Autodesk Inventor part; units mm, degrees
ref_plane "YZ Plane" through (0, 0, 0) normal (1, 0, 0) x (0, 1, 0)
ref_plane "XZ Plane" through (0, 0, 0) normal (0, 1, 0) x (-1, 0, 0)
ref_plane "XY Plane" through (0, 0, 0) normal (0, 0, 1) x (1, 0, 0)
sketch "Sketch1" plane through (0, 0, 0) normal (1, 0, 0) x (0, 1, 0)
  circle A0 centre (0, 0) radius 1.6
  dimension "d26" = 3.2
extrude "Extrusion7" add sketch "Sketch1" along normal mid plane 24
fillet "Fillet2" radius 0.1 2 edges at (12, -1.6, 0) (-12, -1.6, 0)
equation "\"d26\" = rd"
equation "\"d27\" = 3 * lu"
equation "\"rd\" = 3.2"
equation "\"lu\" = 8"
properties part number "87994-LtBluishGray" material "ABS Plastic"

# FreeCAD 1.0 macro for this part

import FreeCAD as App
import Part
import Sketcher
Q = App.Units.Quantity


def edges_at(feature, points):
    """Names of the edges that pass closest to the given points."""
    edges = feature.Shape.Edges
    near = lambda p: min(range(len(edges)), key=lambda i: edges[i].distToShape(Part.Vertex(*p))[0])
    return sorted({f"Edge{near(p) + 1}" for p in points})

doc = App.newDocument("Part")
body = doc.addObject("PartDesign::Body", "Body")

# Sketch on YZ plane
sketch1 = body.newObject("Sketcher::SketchObject", "Sketch")
sketch1.AttachmentSupport = (doc.getObject("YZ_Plane"), [""])
sketch1.MapMode = "FlatFace"
sketch1.addGeometry(Part.Circle(App.Vector(0, 0, 0), App.Vector(0, 0, 1), 1.6), False)
sketch1.addConstraint(Sketcher.Constraint("Coincident", 0, 3, -1, 1))
sketch1.addConstraint(Sketcher.Constraint("Diameter", 0, Q("3.2 mm")))
pad1 = body.newObject("PartDesign::Pad", "Pad")
pad1.Profile = sketch1
pad1.Length = 24
pad1.Midplane = True
doc.recompute()

fillet = body.newObject("PartDesign::Fillet", "Fillet")
fillet.Base = (pad1, edges_at(pad1, [(12, -1.6, 0), (-12, -1.6, 0)]))
fillet.Radius = 0.1

doc.recompute()
